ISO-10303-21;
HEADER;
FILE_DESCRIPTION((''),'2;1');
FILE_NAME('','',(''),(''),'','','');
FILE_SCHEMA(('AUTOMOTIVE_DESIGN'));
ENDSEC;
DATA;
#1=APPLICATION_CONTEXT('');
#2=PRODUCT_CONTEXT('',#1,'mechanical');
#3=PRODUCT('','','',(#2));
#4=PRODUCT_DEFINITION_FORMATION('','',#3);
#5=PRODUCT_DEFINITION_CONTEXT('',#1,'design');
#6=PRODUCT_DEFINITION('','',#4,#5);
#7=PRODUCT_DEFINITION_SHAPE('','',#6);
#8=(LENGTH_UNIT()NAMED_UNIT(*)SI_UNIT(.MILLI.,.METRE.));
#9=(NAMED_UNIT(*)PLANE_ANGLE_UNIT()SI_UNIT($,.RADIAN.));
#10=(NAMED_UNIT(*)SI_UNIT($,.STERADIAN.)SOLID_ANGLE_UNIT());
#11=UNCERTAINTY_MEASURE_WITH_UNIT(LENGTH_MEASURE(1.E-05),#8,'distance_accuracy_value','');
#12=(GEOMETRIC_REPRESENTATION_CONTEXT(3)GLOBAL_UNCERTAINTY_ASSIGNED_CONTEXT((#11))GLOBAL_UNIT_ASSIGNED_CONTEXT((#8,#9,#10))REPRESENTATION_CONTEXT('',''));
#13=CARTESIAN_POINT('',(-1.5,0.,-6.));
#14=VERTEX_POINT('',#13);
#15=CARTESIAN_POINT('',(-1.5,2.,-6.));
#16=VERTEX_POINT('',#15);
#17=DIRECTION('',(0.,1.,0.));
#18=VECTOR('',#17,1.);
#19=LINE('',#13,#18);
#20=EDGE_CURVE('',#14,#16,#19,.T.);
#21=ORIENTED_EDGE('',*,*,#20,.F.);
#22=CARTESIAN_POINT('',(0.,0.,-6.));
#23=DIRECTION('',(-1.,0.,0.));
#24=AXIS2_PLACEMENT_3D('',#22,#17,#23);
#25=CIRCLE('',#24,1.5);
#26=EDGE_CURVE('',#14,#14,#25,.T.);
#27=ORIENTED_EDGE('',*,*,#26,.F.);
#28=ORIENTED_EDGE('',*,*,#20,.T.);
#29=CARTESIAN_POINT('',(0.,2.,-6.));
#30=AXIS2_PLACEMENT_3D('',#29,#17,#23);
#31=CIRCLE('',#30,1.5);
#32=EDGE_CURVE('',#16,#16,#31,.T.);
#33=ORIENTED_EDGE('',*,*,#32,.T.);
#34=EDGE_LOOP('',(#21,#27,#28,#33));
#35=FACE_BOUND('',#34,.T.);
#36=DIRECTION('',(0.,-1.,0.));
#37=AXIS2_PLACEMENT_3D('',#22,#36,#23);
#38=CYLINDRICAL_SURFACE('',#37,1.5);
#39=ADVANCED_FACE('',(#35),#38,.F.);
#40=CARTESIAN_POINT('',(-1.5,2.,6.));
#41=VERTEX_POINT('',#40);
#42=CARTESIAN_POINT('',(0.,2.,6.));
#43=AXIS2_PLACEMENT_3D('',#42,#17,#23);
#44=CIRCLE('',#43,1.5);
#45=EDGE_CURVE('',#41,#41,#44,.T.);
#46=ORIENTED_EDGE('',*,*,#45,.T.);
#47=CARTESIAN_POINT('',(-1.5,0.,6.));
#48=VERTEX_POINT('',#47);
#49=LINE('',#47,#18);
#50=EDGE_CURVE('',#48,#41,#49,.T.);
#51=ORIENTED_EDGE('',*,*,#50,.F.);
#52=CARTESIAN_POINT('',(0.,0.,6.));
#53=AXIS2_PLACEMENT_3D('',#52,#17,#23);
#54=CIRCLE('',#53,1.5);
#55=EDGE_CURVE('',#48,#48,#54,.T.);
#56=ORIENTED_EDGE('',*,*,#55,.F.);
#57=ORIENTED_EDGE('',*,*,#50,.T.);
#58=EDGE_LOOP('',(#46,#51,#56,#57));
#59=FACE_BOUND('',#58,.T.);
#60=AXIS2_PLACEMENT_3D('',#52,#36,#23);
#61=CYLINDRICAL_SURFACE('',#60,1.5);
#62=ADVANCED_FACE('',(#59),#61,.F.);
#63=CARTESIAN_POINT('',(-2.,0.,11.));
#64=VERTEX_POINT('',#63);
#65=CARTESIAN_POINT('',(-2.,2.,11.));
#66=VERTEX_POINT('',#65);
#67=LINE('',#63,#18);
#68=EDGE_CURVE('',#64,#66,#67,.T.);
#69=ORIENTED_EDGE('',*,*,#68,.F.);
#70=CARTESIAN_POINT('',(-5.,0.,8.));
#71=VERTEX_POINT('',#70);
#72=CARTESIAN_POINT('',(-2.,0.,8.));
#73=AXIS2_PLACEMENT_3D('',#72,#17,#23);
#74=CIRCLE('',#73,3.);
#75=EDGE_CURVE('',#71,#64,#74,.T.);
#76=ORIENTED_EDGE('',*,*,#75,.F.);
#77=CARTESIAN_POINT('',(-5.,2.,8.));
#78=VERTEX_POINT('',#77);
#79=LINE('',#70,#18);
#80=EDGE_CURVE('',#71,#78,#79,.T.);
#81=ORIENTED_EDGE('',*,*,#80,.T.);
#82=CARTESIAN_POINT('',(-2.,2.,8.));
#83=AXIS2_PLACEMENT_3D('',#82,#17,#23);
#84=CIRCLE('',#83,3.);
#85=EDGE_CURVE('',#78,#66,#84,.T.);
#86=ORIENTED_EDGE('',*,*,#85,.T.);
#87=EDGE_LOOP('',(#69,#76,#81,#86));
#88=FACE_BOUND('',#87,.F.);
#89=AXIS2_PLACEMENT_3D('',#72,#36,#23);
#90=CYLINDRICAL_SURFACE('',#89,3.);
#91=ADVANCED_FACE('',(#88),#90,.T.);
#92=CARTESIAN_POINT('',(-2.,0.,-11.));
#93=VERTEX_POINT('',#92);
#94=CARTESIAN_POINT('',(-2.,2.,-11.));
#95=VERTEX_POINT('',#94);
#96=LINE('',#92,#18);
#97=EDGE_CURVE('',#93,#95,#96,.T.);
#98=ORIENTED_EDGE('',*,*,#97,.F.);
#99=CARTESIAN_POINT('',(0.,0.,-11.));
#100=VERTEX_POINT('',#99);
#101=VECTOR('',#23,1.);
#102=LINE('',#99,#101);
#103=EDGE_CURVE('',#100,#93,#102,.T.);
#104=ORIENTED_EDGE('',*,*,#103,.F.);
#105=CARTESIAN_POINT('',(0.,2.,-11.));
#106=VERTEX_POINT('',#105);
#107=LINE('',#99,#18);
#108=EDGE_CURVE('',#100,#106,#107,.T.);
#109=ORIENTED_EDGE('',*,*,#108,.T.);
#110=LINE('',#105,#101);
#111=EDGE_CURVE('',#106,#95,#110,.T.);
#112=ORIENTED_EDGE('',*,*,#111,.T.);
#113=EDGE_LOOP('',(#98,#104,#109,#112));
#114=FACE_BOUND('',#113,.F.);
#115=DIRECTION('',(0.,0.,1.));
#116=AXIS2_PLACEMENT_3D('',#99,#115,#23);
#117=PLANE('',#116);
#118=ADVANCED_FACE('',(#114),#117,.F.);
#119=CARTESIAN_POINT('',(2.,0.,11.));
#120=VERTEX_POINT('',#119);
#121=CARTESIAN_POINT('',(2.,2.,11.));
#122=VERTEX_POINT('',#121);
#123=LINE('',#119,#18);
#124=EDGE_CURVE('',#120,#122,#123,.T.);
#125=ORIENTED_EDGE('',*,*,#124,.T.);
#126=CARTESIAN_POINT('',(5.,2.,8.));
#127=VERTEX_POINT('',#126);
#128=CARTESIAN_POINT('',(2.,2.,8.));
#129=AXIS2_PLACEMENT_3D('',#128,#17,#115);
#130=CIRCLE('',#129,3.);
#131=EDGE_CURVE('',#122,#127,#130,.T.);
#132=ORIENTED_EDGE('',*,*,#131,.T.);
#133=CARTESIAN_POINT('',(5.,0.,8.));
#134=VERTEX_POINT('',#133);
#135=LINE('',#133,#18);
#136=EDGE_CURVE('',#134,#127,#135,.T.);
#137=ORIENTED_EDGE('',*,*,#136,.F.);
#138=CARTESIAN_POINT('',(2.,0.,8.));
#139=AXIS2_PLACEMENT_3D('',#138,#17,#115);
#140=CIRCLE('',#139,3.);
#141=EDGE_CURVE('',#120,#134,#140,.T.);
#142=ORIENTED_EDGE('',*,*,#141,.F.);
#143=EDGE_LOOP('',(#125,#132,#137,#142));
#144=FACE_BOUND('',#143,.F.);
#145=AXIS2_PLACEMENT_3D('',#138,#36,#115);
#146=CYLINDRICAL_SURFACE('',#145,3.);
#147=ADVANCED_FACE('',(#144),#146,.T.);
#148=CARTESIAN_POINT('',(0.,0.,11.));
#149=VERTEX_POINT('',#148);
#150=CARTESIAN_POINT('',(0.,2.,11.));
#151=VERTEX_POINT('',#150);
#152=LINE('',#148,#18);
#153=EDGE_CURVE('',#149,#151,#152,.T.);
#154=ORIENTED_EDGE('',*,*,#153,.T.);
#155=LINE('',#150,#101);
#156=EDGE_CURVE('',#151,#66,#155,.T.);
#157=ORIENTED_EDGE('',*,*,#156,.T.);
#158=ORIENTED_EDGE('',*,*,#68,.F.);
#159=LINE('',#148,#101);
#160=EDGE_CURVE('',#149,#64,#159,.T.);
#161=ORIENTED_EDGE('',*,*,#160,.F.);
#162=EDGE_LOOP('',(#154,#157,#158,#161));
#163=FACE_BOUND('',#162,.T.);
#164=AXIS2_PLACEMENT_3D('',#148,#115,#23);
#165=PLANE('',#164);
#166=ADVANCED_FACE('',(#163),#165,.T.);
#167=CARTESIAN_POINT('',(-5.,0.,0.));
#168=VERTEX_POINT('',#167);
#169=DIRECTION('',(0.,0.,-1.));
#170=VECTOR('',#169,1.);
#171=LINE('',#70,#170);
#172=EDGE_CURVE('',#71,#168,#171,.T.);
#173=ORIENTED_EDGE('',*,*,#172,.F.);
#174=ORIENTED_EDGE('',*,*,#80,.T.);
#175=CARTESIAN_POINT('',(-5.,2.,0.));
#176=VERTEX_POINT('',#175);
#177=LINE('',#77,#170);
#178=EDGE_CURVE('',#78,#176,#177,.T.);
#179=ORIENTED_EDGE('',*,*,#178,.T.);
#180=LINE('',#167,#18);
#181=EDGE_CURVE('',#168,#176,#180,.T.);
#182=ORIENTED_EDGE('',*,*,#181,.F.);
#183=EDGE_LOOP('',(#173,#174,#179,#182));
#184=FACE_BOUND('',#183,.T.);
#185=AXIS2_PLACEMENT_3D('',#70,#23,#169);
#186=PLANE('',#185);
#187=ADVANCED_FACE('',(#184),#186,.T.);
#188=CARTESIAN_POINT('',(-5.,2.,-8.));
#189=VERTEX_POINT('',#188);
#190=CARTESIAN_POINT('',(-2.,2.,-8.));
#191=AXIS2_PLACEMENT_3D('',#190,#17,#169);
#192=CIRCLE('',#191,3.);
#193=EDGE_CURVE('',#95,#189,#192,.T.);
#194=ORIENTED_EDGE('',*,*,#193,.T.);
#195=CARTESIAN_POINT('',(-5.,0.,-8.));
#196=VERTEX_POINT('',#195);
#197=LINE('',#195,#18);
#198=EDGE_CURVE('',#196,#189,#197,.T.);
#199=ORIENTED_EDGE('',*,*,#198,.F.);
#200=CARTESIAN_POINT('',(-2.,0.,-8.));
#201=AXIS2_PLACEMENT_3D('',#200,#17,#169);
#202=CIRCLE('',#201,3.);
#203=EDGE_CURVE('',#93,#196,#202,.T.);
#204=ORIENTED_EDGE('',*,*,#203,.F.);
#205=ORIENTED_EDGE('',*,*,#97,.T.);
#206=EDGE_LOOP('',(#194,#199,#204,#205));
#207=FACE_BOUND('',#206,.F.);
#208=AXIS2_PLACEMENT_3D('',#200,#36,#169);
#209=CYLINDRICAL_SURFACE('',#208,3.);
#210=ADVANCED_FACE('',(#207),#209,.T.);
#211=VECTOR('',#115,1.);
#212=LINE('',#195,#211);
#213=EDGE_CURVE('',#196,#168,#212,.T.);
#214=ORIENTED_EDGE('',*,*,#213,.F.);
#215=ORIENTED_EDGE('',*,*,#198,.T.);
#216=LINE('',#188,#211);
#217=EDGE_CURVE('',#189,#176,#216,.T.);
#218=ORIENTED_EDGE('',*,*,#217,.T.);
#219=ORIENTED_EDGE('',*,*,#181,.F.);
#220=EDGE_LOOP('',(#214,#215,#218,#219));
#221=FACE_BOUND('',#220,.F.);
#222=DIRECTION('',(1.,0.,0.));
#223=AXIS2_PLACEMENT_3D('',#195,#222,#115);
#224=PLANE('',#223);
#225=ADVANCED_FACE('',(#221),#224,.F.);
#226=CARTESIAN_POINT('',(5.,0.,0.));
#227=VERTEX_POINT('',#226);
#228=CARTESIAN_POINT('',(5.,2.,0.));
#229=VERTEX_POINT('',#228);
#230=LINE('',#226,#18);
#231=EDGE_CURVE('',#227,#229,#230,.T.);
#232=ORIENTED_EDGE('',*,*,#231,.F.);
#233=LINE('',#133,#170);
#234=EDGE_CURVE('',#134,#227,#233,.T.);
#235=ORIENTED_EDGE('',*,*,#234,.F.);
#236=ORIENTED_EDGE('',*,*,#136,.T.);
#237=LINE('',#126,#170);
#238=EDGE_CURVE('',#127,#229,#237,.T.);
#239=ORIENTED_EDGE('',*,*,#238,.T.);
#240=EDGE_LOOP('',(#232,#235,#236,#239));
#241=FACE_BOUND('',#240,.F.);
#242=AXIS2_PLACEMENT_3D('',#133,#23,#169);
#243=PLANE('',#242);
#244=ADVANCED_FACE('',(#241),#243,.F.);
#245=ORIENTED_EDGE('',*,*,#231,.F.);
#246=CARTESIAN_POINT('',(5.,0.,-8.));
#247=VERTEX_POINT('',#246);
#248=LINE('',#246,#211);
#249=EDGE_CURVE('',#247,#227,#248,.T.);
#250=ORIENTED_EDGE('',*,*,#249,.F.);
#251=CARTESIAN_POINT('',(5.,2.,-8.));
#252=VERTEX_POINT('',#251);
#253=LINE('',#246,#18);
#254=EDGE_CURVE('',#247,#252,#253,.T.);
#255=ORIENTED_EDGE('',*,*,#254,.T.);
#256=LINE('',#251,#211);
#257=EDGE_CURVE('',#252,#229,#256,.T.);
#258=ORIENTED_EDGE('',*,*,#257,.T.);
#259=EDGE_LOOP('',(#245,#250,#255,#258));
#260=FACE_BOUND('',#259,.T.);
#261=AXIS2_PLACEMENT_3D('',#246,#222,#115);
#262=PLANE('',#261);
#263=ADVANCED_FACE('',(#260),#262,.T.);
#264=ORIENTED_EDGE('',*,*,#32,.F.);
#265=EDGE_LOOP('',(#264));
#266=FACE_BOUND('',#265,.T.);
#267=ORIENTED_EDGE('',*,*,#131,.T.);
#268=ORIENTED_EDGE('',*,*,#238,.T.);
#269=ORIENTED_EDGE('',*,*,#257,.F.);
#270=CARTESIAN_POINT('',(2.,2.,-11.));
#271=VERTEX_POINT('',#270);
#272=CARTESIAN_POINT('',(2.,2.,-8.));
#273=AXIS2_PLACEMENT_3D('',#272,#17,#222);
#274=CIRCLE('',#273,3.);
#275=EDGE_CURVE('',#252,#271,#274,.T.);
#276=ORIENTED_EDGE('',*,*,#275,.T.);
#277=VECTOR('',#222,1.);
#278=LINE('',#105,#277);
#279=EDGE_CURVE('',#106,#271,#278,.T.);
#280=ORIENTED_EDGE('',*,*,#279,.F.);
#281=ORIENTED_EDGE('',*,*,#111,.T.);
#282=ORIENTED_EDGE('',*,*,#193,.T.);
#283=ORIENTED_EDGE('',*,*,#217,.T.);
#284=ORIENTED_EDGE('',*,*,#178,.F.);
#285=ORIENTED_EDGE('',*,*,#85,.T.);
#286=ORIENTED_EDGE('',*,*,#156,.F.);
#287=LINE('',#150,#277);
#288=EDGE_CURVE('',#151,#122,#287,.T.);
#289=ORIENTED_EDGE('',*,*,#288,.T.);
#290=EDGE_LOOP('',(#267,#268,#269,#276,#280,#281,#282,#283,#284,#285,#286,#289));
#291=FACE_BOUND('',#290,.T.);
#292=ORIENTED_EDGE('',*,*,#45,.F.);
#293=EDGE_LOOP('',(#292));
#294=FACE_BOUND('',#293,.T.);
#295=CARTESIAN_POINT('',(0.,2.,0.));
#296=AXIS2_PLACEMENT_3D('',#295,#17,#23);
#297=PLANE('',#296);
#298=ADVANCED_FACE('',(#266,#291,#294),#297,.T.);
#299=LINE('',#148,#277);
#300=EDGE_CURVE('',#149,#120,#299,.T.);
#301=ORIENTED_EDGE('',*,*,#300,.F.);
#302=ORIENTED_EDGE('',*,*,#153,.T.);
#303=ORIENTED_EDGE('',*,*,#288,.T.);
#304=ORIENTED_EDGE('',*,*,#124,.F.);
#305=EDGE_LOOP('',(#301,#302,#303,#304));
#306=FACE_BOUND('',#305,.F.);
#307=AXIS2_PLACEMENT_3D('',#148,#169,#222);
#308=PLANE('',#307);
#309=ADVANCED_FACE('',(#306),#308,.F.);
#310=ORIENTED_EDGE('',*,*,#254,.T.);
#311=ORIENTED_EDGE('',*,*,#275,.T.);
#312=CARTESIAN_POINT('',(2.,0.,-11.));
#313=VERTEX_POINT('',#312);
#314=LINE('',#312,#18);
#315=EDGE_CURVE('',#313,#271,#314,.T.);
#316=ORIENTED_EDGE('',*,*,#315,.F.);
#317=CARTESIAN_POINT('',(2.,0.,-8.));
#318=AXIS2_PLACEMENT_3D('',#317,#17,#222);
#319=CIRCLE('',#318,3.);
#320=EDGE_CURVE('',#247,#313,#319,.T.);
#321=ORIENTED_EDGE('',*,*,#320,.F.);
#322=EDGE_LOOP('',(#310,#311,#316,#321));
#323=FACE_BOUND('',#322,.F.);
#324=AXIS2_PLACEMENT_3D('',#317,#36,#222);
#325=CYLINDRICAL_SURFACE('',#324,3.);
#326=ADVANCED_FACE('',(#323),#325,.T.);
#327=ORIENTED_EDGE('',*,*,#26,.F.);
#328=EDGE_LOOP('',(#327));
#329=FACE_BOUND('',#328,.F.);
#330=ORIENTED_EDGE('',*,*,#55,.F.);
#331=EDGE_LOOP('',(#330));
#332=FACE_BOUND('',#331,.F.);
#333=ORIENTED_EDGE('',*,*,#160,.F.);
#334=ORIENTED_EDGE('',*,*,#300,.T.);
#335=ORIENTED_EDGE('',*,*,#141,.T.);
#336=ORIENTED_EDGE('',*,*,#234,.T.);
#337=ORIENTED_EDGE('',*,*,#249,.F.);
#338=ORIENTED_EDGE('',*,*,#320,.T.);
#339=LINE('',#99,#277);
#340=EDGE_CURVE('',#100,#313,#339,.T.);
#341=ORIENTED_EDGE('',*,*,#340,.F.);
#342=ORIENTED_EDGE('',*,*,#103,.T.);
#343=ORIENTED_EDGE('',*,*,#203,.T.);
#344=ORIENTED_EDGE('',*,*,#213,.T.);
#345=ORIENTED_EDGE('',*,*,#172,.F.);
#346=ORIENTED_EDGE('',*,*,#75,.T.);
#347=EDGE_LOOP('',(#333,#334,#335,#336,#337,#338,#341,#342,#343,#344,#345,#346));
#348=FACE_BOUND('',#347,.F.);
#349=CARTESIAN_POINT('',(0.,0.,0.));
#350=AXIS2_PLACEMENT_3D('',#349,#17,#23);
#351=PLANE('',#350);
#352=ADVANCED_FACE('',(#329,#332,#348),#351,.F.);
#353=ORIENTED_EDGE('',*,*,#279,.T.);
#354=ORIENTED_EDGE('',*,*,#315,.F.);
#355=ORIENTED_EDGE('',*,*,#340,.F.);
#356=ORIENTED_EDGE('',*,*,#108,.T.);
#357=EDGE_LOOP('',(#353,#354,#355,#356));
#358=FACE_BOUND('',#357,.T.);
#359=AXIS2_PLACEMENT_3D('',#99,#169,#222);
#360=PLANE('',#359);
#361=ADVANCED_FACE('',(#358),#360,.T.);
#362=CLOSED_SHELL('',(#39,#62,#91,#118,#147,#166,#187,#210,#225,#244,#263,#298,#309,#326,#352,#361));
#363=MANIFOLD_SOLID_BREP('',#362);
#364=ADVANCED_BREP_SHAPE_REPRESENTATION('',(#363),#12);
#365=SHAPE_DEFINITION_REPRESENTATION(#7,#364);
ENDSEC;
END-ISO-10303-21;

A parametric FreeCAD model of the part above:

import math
import FreeCAD as App
import Part
import Sketcher
from FreeCAD import Vector
Q = App.Units.Quantity

doc = App.newDocument("Part")
body = doc.addObject("PartDesign::Body", "Body")

# Sketch on XZ plane
sketch1 = doc.addObject("Sketcher::SketchObject", "Sketch")
body.addObject(sketch1)
sketch1.AttachmentSupport = (doc.XZ_Plane, [""])
sketch1.MapMode = "FlatFace"
sketch1.addGeometry([
    Part.LineSegment(Vector(-2, 11, 0), Vector(2, 11, 0)),  # 0
    Part.ArcOfCircle(Part.Circle(Vector(2, 8, 0), Vector(0, 0, 1), 3), math.radians(0), math.radians(90)),  # 1
    Part.LineSegment(Vector(5, 8, 0), Vector(5, -8, 0)),  # 2
    Part.ArcOfCircle(Part.Circle(Vector(2, -8, 0), Vector(0, 0, 1), 3), math.radians(-90), math.radians(0)),  # 3
    Part.LineSegment(Vector(2, -11, 0), Vector(-2, -11, 0)),  # 4
    Part.ArcOfCircle(Part.Circle(Vector(-2, -8, 0), Vector(0, 0, 1), 3), math.radians(180), math.radians(270)),  # 5
    Part.LineSegment(Vector(-5, -8, 0), Vector(-5, 8, 0)),  # 6
    Part.ArcOfCircle(Part.Circle(Vector(-2, 8, 0), Vector(0, 0, 1), 3), math.radians(90), math.radians(180)),  # 7
    Part.Circle(Vector(0, -6, 0), Vector(0, 0, 1), 1.5),  # 8
    Part.Circle(Vector(0, 6, 0), Vector(0, 0, 1), 1.5),  # 9
], False)
sketch1.addConstraint([
    Sketcher.Constraint("Tangent", 0, 2, 1, 2),
    Sketcher.Constraint("Tangent", 1, 1, 2, 1),
    Sketcher.Constraint("Tangent", 2, 2, 3, 2),
    Sketcher.Constraint("Tangent", 3, 1, 4, 1),
    Sketcher.Constraint("Tangent", 4, 2, 5, 2),
    Sketcher.Constraint("Tangent", 5, 1, 6, 1),
    Sketcher.Constraint("Tangent", 6, 2, 7, 2),
    Sketcher.Constraint("Tangent", 7, 1, 0, 1),
    Sketcher.Constraint("Horizontal", 0),
    Sketcher.Constraint("Vertical", 2),
    Sketcher.Constraint("Horizontal", 4),
    Sketcher.Constraint("Vertical", 6),
    Sketcher.Constraint("Equal", 1, 3),
    Sketcher.Constraint("Equal", 3, 5),
    Sketcher.Constraint("Equal", 5, 7),
    Sketcher.Constraint("Equal", 8, 9),
    Sketcher.Constraint("Symmetric", 1, 3, 5, 3, -1, 1),
    Sketcher.Constraint("Symmetric", 8, 3, 9, 3, -1, 1),
    Sketcher.Constraint("PointOnObject", 8, 3, -2),
    Sketcher.Constraint("Diameter", 8, Q("3 mm")),
    Sketcher.Constraint("Radius", 1, Q("3 mm")),
    Sketcher.Constraint("DistanceY", 8, 3, -1, 1, Q("6 mm")),
    Sketcher.Constraint("DistanceX", -1, 1, 1, 1, Q("5 mm")),
    Sketcher.Constraint("DistanceY", 9, 3, 0, 2, Q("5 mm")),
])
pad1 = doc.addObject("PartDesign::Pad", "Pad")
body.addObject(pad1)
pad1.Profile = sketch1
pad1.Length = 2
pad1.Reversed = True

doc.recompute()
